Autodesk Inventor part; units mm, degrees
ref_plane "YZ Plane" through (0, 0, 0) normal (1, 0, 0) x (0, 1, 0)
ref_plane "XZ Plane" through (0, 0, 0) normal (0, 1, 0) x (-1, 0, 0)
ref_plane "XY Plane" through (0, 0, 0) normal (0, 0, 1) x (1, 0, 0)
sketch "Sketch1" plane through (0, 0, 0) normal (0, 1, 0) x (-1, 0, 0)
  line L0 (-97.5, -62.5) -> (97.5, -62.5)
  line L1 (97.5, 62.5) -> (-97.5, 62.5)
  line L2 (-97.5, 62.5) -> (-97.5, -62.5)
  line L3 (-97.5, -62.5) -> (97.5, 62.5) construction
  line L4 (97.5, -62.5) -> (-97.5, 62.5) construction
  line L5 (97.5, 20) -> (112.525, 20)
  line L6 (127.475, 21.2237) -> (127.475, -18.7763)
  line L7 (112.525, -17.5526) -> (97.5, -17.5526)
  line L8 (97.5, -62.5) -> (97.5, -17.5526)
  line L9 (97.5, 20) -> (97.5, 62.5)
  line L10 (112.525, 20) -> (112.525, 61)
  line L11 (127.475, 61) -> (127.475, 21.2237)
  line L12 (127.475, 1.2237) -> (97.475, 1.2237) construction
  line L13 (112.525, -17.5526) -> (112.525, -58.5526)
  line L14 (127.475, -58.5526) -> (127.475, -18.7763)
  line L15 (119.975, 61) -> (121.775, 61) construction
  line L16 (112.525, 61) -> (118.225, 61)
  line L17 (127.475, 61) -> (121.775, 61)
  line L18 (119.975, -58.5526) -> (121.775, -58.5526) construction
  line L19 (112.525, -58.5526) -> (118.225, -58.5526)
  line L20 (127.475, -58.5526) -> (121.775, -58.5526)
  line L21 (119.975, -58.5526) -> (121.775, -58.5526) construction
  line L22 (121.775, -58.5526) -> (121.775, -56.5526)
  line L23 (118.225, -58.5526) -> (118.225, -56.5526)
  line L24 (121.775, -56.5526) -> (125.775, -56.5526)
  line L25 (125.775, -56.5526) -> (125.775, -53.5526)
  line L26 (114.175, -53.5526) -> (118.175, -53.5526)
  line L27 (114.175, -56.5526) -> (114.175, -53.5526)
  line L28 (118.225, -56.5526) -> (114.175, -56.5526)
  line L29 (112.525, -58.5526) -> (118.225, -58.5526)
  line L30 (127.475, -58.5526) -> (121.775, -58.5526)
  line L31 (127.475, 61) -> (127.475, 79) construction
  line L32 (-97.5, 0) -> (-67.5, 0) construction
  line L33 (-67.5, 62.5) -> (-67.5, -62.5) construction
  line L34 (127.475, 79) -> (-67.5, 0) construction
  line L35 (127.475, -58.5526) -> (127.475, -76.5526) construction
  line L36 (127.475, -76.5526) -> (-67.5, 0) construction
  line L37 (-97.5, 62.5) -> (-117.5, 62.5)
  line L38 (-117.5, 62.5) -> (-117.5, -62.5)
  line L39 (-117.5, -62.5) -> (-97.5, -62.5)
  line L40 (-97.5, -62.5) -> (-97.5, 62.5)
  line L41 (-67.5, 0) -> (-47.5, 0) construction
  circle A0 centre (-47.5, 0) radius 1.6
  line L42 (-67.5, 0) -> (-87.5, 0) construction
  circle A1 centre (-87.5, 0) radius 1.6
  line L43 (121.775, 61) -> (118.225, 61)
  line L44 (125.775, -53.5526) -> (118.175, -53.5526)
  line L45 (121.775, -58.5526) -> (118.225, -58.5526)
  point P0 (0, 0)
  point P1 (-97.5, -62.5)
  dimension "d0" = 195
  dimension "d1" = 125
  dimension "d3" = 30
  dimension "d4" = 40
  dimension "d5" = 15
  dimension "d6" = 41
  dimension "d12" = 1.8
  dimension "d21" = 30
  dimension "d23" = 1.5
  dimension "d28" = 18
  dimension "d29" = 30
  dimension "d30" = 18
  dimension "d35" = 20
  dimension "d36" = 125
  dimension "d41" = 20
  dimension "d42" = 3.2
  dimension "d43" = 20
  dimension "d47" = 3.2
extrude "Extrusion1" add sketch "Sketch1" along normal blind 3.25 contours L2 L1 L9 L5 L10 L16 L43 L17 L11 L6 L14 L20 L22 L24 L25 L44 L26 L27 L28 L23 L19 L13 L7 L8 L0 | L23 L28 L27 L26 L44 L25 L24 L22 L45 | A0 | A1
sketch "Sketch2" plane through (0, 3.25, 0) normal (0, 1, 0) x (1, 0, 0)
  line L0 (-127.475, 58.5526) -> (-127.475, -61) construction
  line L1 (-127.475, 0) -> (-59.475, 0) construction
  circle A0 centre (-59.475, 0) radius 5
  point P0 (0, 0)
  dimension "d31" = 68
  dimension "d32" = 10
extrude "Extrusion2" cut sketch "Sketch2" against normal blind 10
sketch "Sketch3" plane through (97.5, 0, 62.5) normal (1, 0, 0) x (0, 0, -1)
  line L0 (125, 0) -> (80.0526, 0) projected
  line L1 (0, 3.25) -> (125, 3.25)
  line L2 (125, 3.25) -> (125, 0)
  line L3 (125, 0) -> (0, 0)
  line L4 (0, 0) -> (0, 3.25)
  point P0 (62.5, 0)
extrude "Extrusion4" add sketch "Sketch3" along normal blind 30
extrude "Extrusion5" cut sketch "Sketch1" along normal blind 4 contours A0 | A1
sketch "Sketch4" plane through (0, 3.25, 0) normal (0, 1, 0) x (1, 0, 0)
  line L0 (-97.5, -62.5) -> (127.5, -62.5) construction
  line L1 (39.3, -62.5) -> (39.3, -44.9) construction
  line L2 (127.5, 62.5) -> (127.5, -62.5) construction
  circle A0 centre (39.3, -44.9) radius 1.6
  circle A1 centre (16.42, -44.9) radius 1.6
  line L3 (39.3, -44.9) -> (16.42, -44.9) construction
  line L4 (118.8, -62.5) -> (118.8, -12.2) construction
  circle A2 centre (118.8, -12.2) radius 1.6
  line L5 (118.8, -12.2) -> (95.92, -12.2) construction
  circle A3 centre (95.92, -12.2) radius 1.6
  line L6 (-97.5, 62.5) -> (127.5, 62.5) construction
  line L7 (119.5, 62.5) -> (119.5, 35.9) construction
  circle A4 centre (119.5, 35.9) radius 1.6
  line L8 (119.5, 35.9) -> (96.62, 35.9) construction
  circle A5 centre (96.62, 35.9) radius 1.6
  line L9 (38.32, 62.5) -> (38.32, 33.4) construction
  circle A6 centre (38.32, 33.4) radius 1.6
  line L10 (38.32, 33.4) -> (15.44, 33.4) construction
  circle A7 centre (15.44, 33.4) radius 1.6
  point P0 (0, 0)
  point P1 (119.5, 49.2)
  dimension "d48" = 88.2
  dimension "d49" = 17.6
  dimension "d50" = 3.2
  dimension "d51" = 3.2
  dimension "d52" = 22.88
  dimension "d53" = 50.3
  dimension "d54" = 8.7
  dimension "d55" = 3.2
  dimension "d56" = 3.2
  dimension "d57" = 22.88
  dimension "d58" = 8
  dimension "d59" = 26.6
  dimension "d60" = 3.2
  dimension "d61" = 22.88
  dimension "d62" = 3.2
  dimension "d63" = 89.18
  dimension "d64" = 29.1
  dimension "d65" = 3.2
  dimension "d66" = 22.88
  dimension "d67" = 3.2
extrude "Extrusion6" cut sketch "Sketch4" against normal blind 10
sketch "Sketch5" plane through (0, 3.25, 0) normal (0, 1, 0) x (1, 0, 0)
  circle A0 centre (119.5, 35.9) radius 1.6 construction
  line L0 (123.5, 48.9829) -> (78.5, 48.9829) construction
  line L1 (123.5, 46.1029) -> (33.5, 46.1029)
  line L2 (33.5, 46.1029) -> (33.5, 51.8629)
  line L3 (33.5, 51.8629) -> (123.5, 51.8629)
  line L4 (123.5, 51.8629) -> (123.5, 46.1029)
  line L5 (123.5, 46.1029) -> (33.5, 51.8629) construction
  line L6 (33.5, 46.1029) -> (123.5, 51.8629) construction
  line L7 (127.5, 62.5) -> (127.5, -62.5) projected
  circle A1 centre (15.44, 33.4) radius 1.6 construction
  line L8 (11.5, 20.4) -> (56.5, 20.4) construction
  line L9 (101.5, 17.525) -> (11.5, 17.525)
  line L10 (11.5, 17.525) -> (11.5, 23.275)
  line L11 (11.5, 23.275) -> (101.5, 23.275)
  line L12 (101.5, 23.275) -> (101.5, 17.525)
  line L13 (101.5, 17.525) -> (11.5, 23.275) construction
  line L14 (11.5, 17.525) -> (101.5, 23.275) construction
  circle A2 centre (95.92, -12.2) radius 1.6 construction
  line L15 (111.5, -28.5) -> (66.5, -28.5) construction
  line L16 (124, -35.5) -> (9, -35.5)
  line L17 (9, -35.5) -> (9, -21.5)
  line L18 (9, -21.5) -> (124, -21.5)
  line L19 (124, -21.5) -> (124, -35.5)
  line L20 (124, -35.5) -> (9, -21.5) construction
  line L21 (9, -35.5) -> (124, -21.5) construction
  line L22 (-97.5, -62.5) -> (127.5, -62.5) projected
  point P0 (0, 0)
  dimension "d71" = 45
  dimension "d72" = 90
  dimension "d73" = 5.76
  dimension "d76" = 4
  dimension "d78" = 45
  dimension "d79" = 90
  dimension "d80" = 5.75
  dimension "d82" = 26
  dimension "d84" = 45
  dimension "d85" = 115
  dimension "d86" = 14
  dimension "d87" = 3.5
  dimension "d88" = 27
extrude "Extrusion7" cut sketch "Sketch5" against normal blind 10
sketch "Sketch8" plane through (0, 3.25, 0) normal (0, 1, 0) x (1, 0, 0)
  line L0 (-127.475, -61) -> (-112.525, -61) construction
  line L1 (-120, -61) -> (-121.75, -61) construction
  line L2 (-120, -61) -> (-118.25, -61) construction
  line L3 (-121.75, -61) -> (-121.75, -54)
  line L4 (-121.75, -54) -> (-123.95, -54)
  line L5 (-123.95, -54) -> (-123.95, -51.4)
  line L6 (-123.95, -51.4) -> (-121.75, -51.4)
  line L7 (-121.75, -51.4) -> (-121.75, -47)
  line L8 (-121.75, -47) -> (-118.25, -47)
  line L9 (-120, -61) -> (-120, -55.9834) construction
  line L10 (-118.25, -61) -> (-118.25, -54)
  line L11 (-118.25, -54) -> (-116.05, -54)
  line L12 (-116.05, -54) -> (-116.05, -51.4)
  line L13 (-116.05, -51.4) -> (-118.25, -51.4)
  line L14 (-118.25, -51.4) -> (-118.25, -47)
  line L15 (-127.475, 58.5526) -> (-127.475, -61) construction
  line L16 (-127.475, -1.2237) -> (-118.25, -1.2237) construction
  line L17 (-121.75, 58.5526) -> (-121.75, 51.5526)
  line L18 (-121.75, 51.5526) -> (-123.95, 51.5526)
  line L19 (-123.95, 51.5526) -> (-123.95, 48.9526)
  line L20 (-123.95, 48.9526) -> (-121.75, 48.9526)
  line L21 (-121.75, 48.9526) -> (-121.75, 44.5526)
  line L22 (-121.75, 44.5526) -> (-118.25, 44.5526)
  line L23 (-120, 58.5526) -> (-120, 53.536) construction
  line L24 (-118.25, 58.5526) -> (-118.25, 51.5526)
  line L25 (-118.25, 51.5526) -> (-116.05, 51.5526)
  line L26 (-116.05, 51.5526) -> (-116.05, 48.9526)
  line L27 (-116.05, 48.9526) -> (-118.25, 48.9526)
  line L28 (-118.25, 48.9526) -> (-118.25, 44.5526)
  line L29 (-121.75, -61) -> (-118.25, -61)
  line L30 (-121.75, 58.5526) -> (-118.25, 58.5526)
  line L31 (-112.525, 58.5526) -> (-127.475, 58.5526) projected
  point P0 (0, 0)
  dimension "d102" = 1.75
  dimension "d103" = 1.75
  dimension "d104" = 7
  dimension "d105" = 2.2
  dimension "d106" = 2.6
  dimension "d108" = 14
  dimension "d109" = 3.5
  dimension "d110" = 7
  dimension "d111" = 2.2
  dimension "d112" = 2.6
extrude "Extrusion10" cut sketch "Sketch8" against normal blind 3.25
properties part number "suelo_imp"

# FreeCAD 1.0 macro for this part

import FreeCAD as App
import Part
import Sketcher
from FreeCAD import Vector


def add_polygon(sketch, points):
    """Adds a closed chain of lines whose ends are joined by coincident constraints."""
    first, n = sketch.GeometryCount, len(points)
    for a, b in zip(points, points[1:] + points[:1]):
        sketch.addGeometry(Part.LineSegment(App.Vector(*a, 0), App.Vector(*b, 0)), False)
    for i in range(n):
        sketch.addConstraint(Sketcher.Constraint("Coincident", first + i, 2, first + (i + 1) % n, 1))

doc = App.newDocument("Part")
body = doc.addObject("PartDesign::Body", "Body")

sketch1 = doc.addObject("Sketcher::SketchObject", "Sketch")
body.addObject(sketch1)
sketch1.AttachmentSupport = (doc.XZ_Plane, [""])
sketch1.MapMode = "FlatFace"
add_polygon(sketch1, [(97.5, 62.5), (97.5, -62.5), (-97.5, -62.5), (-97.5, -17.5526), (-112.525, -17.5526), (-112.525, -58.5526), (-127.475, -58.5526), (-127.475, 61), (-112.525, 61), (-112.525, 20), (-97.5, 20), (-97.5, 62.5)])
sketch1.addConstraint(Sketcher.Constraint("Vertical", 0))
sketch1.addConstraint(Sketcher.Constraint("Horizontal", 1))
sketch1.addConstraint(Sketcher.Constraint("Vertical", 2))
sketch1.addConstraint(Sketcher.Constraint("Horizontal", 3))
sketch1.addConstraint(Sketcher.Constraint("Vertical", 4))
sketch1.addConstraint(Sketcher.Constraint("Horizontal", 5))
sketch1.addConstraint(Sketcher.Constraint("Vertical", 6))
sketch1.addConstraint(Sketcher.Constraint("Horizontal", 7))
sketch1.addConstraint(Sketcher.Constraint("Vertical", 8))
sketch1.addConstraint(Sketcher.Constraint("Horizontal", 9))
sketch1.addConstraint(Sketcher.Constraint("Vertical", 10))
sketch1.addConstraint(Sketcher.Constraint("Horizontal", 11))
sketch1.addConstraint(Sketcher.Constraint("Symmetric", 0, 2, 10, 2, -1, 1))
sketch1.addConstraint(Sketcher.Constraint("Vertical", 4, 2, 7, 2))
sketch1.addConstraint(Sketcher.Constraint("Vertical", 2, 2, 9, 2))
sketch1.addConstraint(Sketcher.Constraint("Equal", 4, 8))
sketch1.addConstraint(Sketcher.Constraint("DistanceX", 1, 2, 1, 1, 195.0))
sketch1.addConstraint(Sketcher.Constraint("DistanceY", 0, 2, 0, 1, 125.0))
sketch1.addConstraint(Sketcher.Constraint("DistanceY", 4, 2, 4, 1, 41.0))
sketch1.addConstraint(Sketcher.Constraint("DistanceY", -1, 1, 8, 2, 20.0))
sketch1.addConstraint(Sketcher.Constraint("DistanceX", 5, 2, 5, 1, 14.95))
sketch1.addConstraint(Sketcher.Constraint("DistanceX", 3, 2, 3, 1, 15.025))
sketch1.addConstraint(Sketcher.Constraint("DistanceY", 2, 1, 2, 2, 44.9474))
pad1 = doc.addObject("PartDesign::Pad", "Pad")
body.addObject(pad1)
pad1.Profile = sketch1
pad1.Length = 3.25
pad1.Reversed = True

sketch2 = doc.addObject("Sketcher::SketchObject", "Sketch001")
body.addObject(sketch2)
sketch2.AttachmentSupport = (doc.XZ_Plane, [""])
sketch2.MapMode = "FlatFace"
sketch2.AttachmentOffset = App.Placement(Vector(0, 0, -3.25), App.Rotation())
sketch2.addGeometry(Part.Circle(Vector(-59.475, 0, 0), Vector(0, 0, 1), 5), False)
sketch2.addConstraint(Sketcher.Constraint("PointOnObject", 0, 3, -1))
sketch2.addConstraint(Sketcher.Constraint("Diameter", 0, 10.0))
sketch2.addConstraint(Sketcher.Constraint("DistanceX", 0, 3, -1, 1, 59.475))
pocket1 = doc.addObject("PartDesign::Pocket", "Pocket")
body.addObject(pocket1)
pocket1.Profile = sketch2
pocket1.Length = 10
pocket1.Reversed = True

sketch3 = doc.addObject("Sketcher::SketchObject", "Sketch002")
body.addObject(sketch3)
sketch3.AttachmentSupport = (doc.YZ_Plane, [""])
sketch3.MapMode = "FlatFace"
sketch3.AttachmentOffset = App.Placement(Vector(0, 0, 97.5), App.Rotation())
add_polygon(sketch3, [(0, 62.5), (0, -62.5), (3.25, -62.5), (3.25, 62.5)])
sketch3.addConstraint(Sketcher.Constraint("Vertical", 0))
sketch3.addConstraint(Sketcher.Constraint("Horizontal", 1))
sketch3.addConstraint(Sketcher.Constraint("Vertical", 2))
sketch3.addConstraint(Sketcher.Constraint("Horizontal", 3))
sketch3.addConstraint(Sketcher.Constraint("Symmetric", 0, 2, 3, 2, -1, 1))
sketch3.addConstraint(Sketcher.Constraint("DistanceY", 0, 2, 0, 1, 125.0))
sketch3.addConstraint(Sketcher.Constraint("DistanceX", 1, 1, 1, 2, 3.25))
pad2 = doc.addObject("PartDesign::Pad", "Pad001")
body.addObject(pad2)
pad2.Profile = sketch3
pad2.Length = 30

sketch4 = doc.addObject("Sketcher::SketchObject", "Sketch003")
body.addObject(sketch4)
sketch4.AttachmentSupport = (doc.XZ_Plane, [""])
sketch4.MapMode = "FlatFace"
sketch4.addGeometry(Part.Circle(Vector(47.5, 0, 0), Vector(0, 0, 1), 1.6), False)
sketch4.addGeometry(Part.Circle(Vector(87.5, 0, 0), Vector(0, 0, 1), 1.6), False)
sketch4.addConstraint(Sketcher.Constraint("Equal", 0, 1))
sketch4.addConstraint(Sketcher.Constraint("PointOnObject", 0, 3, -1))
sketch4.addConstraint(Sketcher.Constraint("PointOnObject", 1, 3, -1))
sketch4.addConstraint(Sketcher.Constraint("Diameter", 0, 3.2))
sketch4.addConstraint(Sketcher.Constraint("DistanceX", 0, 3, 1, 3, 40.0))
sketch4.addConstraint(Sketcher.Constraint("DistanceX", -1, 1, 0, 3, 47.5))
pocket2 = doc.addObject("PartDesign::Pocket", "Pocket001")
body.addObject(pocket2)
pocket2.Profile = sketch4
pocket2.Length = 4

sketch5 = doc.addObject("Sketcher::SketchObject", "Sketch004")
body.addObject(sketch5)
sketch5.AttachmentSupport = (doc.XZ_Plane, [""])
sketch5.MapMode = "FlatFace"
sketch5.AttachmentOffset = App.Placement(Vector(0, 0, -3.25), App.Rotation())
sketch5.addGeometry(Part.Circle(Vector(39.3, 44.9, 0), Vector(0, 0, 1), 1.6), False)
sketch5.addGeometry(Part.Circle(Vector(16.42, 44.9, 0), Vector(0, 0, 1), 1.6), False)
sketch5.addGeometry(Part.Circle(Vector(118.8, 12.2, 0), Vector(0, 0, 1), 1.6), False)
sketch5.addGeometry(Part.Circle(Vector(95.92, 12.2, 0), Vector(0, 0, 1), 1.6), False)
sketch5.addGeometry(Part.Circle(Vector(119.5, -35.9, 0), Vector(0, 0, 1), 1.6), False)
sketch5.addGeometry(Part.Circle(Vector(96.62, -35.9, 0), Vector(0, 0, 1), 1.6), False)
sketch5.addGeometry(Part.Circle(Vector(38.32, -33.4, 0), Vector(0, 0, 1), 1.6), False)
sketch5.addGeometry(Part.Circle(Vector(15.44, -33.4, 0), Vector(0, 0, 1), 1.6), False)
sketch5.addConstraint(Sketcher.Constraint("Equal", 0, 1))
sketch5.addConstraint(Sketcher.Constraint("Equal", 1, 2))
sketch5.addConstraint(Sketcher.Constraint("Equal", 2, 3))
sketch5.addConstraint(Sketcher.Constraint("Equal", 3, 4))
sketch5.addConstraint(Sketcher.Constraint("Equal", 4, 5))
sketch5.addConstraint(Sketcher.Constraint("Equal", 5, 6))
sketch5.addConstraint(Sketcher.Constraint("Equal", 6, 7))
sketch5.addConstraint(Sketcher.Constraint("Horizontal", 0, 3, 1, 3))
sketch5.addConstraint(Sketcher.Constraint("Horizontal", 2, 3, 3, 3))
sketch5.addConstraint(Sketcher.Constraint("Horizontal", 4, 3, 5, 3))
sketch5.addConstraint(Sketcher.Constraint("Horizontal", 6, 3, 7, 3))
sketch5.addConstraint(Sketcher.Constraint("Diameter", 0, 3.2))
sketch5.addConstraint(Sketcher.Constraint("DistanceX", 1, 3, 0, 3, 22.88))
sketch5.addConstraint(Sketcher.Constraint("DistanceX", 3, 3, 2, 3, 22.88))
sketch5.addConstraint(Sketcher.Constraint("DistanceX", 5, 3, 4, 3, 22.88))
sketch5.addConstraint(Sketcher.Constraint("DistanceX", 7, 3, 6, 3, 22.88))
sketch5.addConstraint(Sketcher.Constraint("DistanceX", -1, 1, 0, 3, 39.3))
sketch5.addConstraint(Sketcher.Constraint("DistanceY", -1, 1, 0, 3, 44.9))
sketch5.addConstraint(Sketcher.Constraint("DistanceX", -1, 1, 2, 3, 118.8))
sketch5.addConstraint(Sketcher.Constraint("DistanceY", -1, 1, 2, 3, 12.2))
sketch5.addConstraint(Sketcher.Constraint("DistanceX", -1, 1, 4, 3, 119.5))
sketch5.addConstraint(Sketcher.Constraint("DistanceY", 4, 3, -1, 1, 35.9))
sketch5.addConstraint(Sketcher.Constraint("DistanceY", 6, 3, -1, 1, 33.4))
sketch5.addConstraint(Sketcher.Constraint("DistanceX", 6, 3, 5, 3, 58.3))
pocket3 = doc.addObject("PartDesign::Pocket", "Pocket002")
body.addObject(pocket3)
pocket3.Profile = sketch5
pocket3.Length = 10
pocket3.Reversed = True

sketch6 = doc.addObject("Sketcher::SketchObject", "Sketch005")
body.addObject(sketch6)
sketch6.AttachmentSupport = (doc.XZ_Plane, [""])
sketch6.MapMode = "FlatFace"
sketch6.AttachmentOffset = App.Placement(Vector(0, 0, -3.25), App.Rotation())
add_polygon(sketch6, [(33.5, -46.1029), (123.5, -46.1029), (123.5, -51.8629), (33.5, -51.8629)])
add_polygon(sketch6, [(11.5, -17.525), (101.5, -17.525), (101.5, -23.275), (11.5, -23.275)])
add_polygon(sketch6, [(9, 35.5), (124, 35.5), (124, 21.5), (9, 21.5)])
sketch6.addConstraint(Sketcher.Constraint("Horizontal", 0))
sketch6.addConstraint(Sketcher.Constraint("Vertical", 1))
sketch6.addConstraint(Sketcher.Constraint("Horizontal", 2))
sketch6.addConstraint(Sketcher.Constraint("Vertical", 3))
sketch6.addConstraint(Sketcher.Constraint("Horizontal", 4))
sketch6.addConstraint(Sketcher.Constraint("Vertical", 5))
sketch6.addConstraint(Sketcher.Constraint("Horizontal", 6))
sketch6.addConstraint(Sketcher.Constraint("Vertical", 7))
sketch6.addConstraint(Sketcher.Constraint("Horizontal", 8))
sketch6.addConstraint(Sketcher.Constraint("Vertical", 9))
sketch6.addConstraint(Sketcher.Constraint("Horizontal", 10))
sketch6.addConstraint(Sketcher.Constraint("Vertical", 11))
sketch6.addConstraint(Sketcher.Constraint("Equal", 2, 4))
sketch6.addConstraint(Sketcher.Constraint("DistanceX", 0, 1, 0, 2, 90.0))
sketch6.addConstraint(Sketcher.Constraint("DistanceX", 8, 1, 8, 2, 115.0))
sketch6.addConstraint(Sketcher.Constraint("DistanceY", 9, 2, 9, 1, 14.0))
sketch6.addConstraint(Sketcher.Constraint("DistanceY", 1, 2, 1, 1, 5.76))
sketch6.addConstraint(Sketcher.Constraint("DistanceY", 5, 2, 5, 1, 5.75))
sketch6.addConstraint(Sketcher.Constraint("DistanceX", -1, 1, 8, 2, 124.0))
sketch6.addConstraint(Sketcher.Constraint("DistanceX", 4, 2, 0, 2, 22.0))
sketch6.addConstraint(Sketcher.Constraint("DistanceX", -1, 1, 0, 2, 123.5))
sketch6.addConstraint(Sketcher.Constraint("DistanceY", -1, 1, 8, 2, 35.5))
sketch6.addConstraint(Sketcher.Constraint("DistanceY", 0, 2, -1, 1, 46.103))
sketch6.addConstraint(Sketcher.Constraint("DistanceY", 4, 2, -1, 1, 17.525))
pocket4 = doc.addObject("PartDesign::Pocket", "Pocket003")
body.addObject(pocket4)
pocket4.Profile = sketch6
pocket4.Length = 10
pocket4.Reversed = True

sketch7 = doc.addObject("Sketcher::SketchObject", "Sketch006")
body.addObject(sketch7)
sketch7.AttachmentSupport = (doc.XZ_Plane, [""])
sketch7.MapMode = "FlatFace"
sketch7.AttachmentOffset = App.Placement(Vector(0, 0, -3.25), App.Rotation())
add_polygon(sketch7, [(-121.75, 54), (-121.75, 61), (-118.25, 61), (-118.25, 54), (-116.05, 54), (-116.05, 51.4), (-118.25, 51.4), (-118.25, 47), (-121.75, 47), (-121.75, 51.4), (-123.95, 51.4), (-123.95, 54)])
add_polygon(sketch7, [(-118.25, -58.5526), (-121.75, -58.5526), (-121.75, -51.5526), (-123.95, -51.5526), (-123.95, -48.9526), (-121.75, -48.9526), (-121.75, -44.5526), (-118.25, -44.5526), (-118.25, -48.9526), (-116.05, -48.9526), (-116.05, -51.5526), (-118.25, -51.5526)])
sketch7.addConstraint(Sketcher.Constraint("Vertical", 0))
sketch7.addConstraint(Sketcher.Constraint("Horizontal", 1))
sketch7.addConstraint(Sketcher.Constraint("Vertical", 2))
sketch7.addConstraint(Sketcher.Constraint("Horizontal", 3))
sketch7.addConstraint(Sketcher.Constraint("Vertical", 4))
sketch7.addConstraint(Sketcher.Constraint("Horizontal", 5))
sketch7.addConstraint(Sketcher.Constraint("Vertical", 6))
sketch7.addConstraint(Sketcher.Constraint("Horizontal", 7))
sketch7.addConstraint(Sketcher.Constraint("Vertical", 8))
sketch7.addConstraint(Sketcher.Constraint("Horizontal", 9))
sketch7.addConstraint(Sketcher.Constraint("Vertical", 10))
sketch7.addConstraint(Sketcher.Constraint("Horizontal", 11))
sketch7.addConstraint(Sketcher.Constraint("Horizontal", 12))
sketch7.addConstraint(Sketcher.Constraint("Vertical", 13))
sketch7.addConstraint(Sketcher.Constraint("Horizontal", 14))
sketch7.addConstraint(Sketcher.Constraint("Vertical", 15))
sketch7.addConstraint(Sketcher.Constraint("Horizontal", 16))
sketch7.addConstraint(Sketcher.Constraint("Vertical", 17))
sketch7.addConstraint(Sketcher.Constraint("Horizontal", 18))
sketch7.addConstraint(Sketcher.Constraint("Vertical", 19))
sketch7.addConstraint(Sketcher.Constraint("Horizontal", 20))
sketch7.addConstraint(Sketcher.Constraint("Vertical", 21))
sketch7.addConstraint(Sketcher.Constraint("Horizontal", 22))
sketch7.addConstraint(Sketcher.Constraint("Vertical", 23))
sketch7.addConstraint(Sketcher.Constraint("Horizontal", 5, 2, 8, 2))
sketch7.addConstraint(Sketcher.Constraint("Horizontal", 3, 2, 10, 2))
sketch7.addConstraint(Sketcher.Constraint("Horizontal", 16, 2, 19, 2))
sketch7.addConstraint(Sketcher.Constraint("Horizontal", 14, 2, 21, 2))
sketch7.addConstraint(Sketcher.Constraint("Vertical", 2, 2, 5, 2))
sketch7.addConstraint(Sketcher.Constraint("Vertical", 0, 2, 7, 2))
sketch7.addConstraint(Sketcher.Constraint("Vertical", 11, 2, 12, 2))
sketch7.addConstraint(Sketcher.Constraint("Vertical", 10, 2, 14, 2))
sketch7.addConstraint(Sketcher.Constraint("Vertical", 13, 2, 16, 2))
sketch7.addConstraint(Sketcher.Constraint("Vertical", 6, 2, 18, 2))
sketch7.addConstraint(Sketcher.Constraint("Vertical", 4, 2, 20, 2))
sketch7.addConstraint(Sketcher.Constraint("Vertical", 19, 2, 22, 2))
sketch7.addConstraint(Sketcher.Constraint("Equal", 5, 9))
sketch7.addConstraint(Sketcher.Constraint("Equal", 2, 13))
sketch7.addConstraint(Sketcher.Constraint("Equal", 10, 15))
sketch7.addConstraint(Sketcher.Constraint("Equal", 8, 17))
sketch7.addConstraint(Sketcher.Constraint("DistanceY", 0, 1, 0, 2, 7.0))
sketch7.addConstraint(Sketcher.Constraint("DistanceX", 1, 1, 1, 2, 3.5))
sketch7.addConstraint(Sketcher.Constraint("DistanceX", 3, 1, 3, 2, 2.2))
sketch7.addConstraint(Sketcher.Constraint("DistanceY", 4, 2, 4, 1, 2.6))
sketch7.addConstraint(Sketcher.Constraint("DistanceY", 6, 2, 2, 2, 7.0))
sketch7.addConstraint(Sketcher.Constraint("DistanceY", -1, 1, 0, 2, 61.0))
sketch7.addConstraint(Sketcher.Constraint("DistanceX", 0, 2, -1, 1, 121.75))
sketch7.addConstraint(Sketcher.Constraint("DistanceY", 12, 2, -1, 1, 58.5526))
pocket5 = doc.addObject("PartDesign::Pocket", "Pocket004")
body.addObject(pocket5)
pocket5.Profile = sketch7
pocket5.Length = 3.25
pocket5.Reversed = True

doc.recompute()
